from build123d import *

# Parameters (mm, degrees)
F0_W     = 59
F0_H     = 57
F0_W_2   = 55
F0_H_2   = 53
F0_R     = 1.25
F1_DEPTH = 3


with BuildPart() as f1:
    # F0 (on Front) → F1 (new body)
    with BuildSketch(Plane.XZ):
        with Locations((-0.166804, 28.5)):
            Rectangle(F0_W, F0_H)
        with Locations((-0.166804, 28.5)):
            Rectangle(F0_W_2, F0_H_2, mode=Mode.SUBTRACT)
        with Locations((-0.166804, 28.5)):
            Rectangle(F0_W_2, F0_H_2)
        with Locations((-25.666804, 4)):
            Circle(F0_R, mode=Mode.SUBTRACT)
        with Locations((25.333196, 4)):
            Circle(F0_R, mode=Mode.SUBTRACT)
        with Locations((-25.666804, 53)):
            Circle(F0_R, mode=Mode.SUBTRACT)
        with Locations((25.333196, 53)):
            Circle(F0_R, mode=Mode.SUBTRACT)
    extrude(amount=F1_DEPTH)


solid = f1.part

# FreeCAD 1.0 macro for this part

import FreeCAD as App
import Part
import Sketcher


def add_polygon(sketch, points):
    """Adds a closed chain of lines whose ends are joined by coincident constraints."""
    first, n = sketch.GeometryCount, len(points)
    for a, b in zip(points, points[1:] + points[:1]):
        sketch.addGeometry(Part.LineSegment(App.Vector(*a, 0), App.Vector(*b, 0)), False)
    for i in range(n):
        sketch.addConstraint(Sketcher.Constraint("Coincident", first + i, 2, first + (i + 1) % n, 1))

doc = App.newDocument("Part")
body = doc.addObject("PartDesign::Body", "Body")

sketch1 = body.newObject("Sketcher::SketchObject", "Sketch")
sketch1.AttachmentSupport = (doc.getObject("XZ_Plane"), [""])
sketch1.MapMode = "FlatFace"
add_polygon(sketch1, [(-29.7, 57), (-29.7, 0), (29.3, 0), (29.3, 57)])
sketch1.addGeometry(Part.Circle(App.Vector(-25.7, 4, 0), App.Vector(0, 0, 1), 1.2), False)
sketch1.addGeometry(Part.Circle(App.Vector(25.3, 4, 0), App.Vector(0, 0, 1), 1.2), False)
sketch1.addGeometry(Part.Circle(App.Vector(-25.7, 53, 0), App.Vector(0, 0, 1), 1.2), False)
sketch1.addGeometry(Part.Circle(App.Vector(25.3, 53, 0), App.Vector(0, 0, 1), 1.2), False)
sketch1.addConstraint([
    Sketcher.Constraint("Vertical", 0),
    Sketcher.Constraint("Horizontal", 1),
    Sketcher.Constraint("Vertical", 2),
    Sketcher.Constraint("Horizontal", 3),
    Sketcher.Constraint("Equal", 4, 5),
    Sketcher.Constraint("Equal", 5, 6),
    Sketcher.Constraint("Equal", 6, 7),
    Sketcher.Constraint("PointOnObject", 0, 2, -1),
    Sketcher.Constraint("Horizontal", 4, 3, 5, 3),
    Sketcher.Constraint("Horizontal", 6, 3, 7, 3),
    Sketcher.Constraint("Vertical", 4, 3, 6, 3),
    Sketcher.Constraint("Vertical", 5, 3, 7, 3),
    Sketcher.Constraint("Diameter", 4, 2.5),
    Sketcher.Constraint("DistanceX", 1, 1, 1, 2, 59.0),
    Sketcher.Constraint("DistanceY", 0, 2, 0, 1, 57.0),
    Sketcher.Constraint("DistanceY", -1, 1, 4, 3, 4.0),
    Sketcher.Constraint("DistanceY", -1, 1, 6, 3, 53.0),
    Sketcher.Constraint("DistanceX", 4, 3, 5, 3, 51.0),
    Sketcher.Constraint("DistanceX", 0, 2, 4, 3, 4.0),
    Sketcher.Constraint("DistanceX", 4, 3, -1, 1, 25.666804),
])
pad1 = body.newObject("PartDesign::Pad", "Pad")
pad1.Profile = sketch1
pad1.Length = 3

doc.recompute()
